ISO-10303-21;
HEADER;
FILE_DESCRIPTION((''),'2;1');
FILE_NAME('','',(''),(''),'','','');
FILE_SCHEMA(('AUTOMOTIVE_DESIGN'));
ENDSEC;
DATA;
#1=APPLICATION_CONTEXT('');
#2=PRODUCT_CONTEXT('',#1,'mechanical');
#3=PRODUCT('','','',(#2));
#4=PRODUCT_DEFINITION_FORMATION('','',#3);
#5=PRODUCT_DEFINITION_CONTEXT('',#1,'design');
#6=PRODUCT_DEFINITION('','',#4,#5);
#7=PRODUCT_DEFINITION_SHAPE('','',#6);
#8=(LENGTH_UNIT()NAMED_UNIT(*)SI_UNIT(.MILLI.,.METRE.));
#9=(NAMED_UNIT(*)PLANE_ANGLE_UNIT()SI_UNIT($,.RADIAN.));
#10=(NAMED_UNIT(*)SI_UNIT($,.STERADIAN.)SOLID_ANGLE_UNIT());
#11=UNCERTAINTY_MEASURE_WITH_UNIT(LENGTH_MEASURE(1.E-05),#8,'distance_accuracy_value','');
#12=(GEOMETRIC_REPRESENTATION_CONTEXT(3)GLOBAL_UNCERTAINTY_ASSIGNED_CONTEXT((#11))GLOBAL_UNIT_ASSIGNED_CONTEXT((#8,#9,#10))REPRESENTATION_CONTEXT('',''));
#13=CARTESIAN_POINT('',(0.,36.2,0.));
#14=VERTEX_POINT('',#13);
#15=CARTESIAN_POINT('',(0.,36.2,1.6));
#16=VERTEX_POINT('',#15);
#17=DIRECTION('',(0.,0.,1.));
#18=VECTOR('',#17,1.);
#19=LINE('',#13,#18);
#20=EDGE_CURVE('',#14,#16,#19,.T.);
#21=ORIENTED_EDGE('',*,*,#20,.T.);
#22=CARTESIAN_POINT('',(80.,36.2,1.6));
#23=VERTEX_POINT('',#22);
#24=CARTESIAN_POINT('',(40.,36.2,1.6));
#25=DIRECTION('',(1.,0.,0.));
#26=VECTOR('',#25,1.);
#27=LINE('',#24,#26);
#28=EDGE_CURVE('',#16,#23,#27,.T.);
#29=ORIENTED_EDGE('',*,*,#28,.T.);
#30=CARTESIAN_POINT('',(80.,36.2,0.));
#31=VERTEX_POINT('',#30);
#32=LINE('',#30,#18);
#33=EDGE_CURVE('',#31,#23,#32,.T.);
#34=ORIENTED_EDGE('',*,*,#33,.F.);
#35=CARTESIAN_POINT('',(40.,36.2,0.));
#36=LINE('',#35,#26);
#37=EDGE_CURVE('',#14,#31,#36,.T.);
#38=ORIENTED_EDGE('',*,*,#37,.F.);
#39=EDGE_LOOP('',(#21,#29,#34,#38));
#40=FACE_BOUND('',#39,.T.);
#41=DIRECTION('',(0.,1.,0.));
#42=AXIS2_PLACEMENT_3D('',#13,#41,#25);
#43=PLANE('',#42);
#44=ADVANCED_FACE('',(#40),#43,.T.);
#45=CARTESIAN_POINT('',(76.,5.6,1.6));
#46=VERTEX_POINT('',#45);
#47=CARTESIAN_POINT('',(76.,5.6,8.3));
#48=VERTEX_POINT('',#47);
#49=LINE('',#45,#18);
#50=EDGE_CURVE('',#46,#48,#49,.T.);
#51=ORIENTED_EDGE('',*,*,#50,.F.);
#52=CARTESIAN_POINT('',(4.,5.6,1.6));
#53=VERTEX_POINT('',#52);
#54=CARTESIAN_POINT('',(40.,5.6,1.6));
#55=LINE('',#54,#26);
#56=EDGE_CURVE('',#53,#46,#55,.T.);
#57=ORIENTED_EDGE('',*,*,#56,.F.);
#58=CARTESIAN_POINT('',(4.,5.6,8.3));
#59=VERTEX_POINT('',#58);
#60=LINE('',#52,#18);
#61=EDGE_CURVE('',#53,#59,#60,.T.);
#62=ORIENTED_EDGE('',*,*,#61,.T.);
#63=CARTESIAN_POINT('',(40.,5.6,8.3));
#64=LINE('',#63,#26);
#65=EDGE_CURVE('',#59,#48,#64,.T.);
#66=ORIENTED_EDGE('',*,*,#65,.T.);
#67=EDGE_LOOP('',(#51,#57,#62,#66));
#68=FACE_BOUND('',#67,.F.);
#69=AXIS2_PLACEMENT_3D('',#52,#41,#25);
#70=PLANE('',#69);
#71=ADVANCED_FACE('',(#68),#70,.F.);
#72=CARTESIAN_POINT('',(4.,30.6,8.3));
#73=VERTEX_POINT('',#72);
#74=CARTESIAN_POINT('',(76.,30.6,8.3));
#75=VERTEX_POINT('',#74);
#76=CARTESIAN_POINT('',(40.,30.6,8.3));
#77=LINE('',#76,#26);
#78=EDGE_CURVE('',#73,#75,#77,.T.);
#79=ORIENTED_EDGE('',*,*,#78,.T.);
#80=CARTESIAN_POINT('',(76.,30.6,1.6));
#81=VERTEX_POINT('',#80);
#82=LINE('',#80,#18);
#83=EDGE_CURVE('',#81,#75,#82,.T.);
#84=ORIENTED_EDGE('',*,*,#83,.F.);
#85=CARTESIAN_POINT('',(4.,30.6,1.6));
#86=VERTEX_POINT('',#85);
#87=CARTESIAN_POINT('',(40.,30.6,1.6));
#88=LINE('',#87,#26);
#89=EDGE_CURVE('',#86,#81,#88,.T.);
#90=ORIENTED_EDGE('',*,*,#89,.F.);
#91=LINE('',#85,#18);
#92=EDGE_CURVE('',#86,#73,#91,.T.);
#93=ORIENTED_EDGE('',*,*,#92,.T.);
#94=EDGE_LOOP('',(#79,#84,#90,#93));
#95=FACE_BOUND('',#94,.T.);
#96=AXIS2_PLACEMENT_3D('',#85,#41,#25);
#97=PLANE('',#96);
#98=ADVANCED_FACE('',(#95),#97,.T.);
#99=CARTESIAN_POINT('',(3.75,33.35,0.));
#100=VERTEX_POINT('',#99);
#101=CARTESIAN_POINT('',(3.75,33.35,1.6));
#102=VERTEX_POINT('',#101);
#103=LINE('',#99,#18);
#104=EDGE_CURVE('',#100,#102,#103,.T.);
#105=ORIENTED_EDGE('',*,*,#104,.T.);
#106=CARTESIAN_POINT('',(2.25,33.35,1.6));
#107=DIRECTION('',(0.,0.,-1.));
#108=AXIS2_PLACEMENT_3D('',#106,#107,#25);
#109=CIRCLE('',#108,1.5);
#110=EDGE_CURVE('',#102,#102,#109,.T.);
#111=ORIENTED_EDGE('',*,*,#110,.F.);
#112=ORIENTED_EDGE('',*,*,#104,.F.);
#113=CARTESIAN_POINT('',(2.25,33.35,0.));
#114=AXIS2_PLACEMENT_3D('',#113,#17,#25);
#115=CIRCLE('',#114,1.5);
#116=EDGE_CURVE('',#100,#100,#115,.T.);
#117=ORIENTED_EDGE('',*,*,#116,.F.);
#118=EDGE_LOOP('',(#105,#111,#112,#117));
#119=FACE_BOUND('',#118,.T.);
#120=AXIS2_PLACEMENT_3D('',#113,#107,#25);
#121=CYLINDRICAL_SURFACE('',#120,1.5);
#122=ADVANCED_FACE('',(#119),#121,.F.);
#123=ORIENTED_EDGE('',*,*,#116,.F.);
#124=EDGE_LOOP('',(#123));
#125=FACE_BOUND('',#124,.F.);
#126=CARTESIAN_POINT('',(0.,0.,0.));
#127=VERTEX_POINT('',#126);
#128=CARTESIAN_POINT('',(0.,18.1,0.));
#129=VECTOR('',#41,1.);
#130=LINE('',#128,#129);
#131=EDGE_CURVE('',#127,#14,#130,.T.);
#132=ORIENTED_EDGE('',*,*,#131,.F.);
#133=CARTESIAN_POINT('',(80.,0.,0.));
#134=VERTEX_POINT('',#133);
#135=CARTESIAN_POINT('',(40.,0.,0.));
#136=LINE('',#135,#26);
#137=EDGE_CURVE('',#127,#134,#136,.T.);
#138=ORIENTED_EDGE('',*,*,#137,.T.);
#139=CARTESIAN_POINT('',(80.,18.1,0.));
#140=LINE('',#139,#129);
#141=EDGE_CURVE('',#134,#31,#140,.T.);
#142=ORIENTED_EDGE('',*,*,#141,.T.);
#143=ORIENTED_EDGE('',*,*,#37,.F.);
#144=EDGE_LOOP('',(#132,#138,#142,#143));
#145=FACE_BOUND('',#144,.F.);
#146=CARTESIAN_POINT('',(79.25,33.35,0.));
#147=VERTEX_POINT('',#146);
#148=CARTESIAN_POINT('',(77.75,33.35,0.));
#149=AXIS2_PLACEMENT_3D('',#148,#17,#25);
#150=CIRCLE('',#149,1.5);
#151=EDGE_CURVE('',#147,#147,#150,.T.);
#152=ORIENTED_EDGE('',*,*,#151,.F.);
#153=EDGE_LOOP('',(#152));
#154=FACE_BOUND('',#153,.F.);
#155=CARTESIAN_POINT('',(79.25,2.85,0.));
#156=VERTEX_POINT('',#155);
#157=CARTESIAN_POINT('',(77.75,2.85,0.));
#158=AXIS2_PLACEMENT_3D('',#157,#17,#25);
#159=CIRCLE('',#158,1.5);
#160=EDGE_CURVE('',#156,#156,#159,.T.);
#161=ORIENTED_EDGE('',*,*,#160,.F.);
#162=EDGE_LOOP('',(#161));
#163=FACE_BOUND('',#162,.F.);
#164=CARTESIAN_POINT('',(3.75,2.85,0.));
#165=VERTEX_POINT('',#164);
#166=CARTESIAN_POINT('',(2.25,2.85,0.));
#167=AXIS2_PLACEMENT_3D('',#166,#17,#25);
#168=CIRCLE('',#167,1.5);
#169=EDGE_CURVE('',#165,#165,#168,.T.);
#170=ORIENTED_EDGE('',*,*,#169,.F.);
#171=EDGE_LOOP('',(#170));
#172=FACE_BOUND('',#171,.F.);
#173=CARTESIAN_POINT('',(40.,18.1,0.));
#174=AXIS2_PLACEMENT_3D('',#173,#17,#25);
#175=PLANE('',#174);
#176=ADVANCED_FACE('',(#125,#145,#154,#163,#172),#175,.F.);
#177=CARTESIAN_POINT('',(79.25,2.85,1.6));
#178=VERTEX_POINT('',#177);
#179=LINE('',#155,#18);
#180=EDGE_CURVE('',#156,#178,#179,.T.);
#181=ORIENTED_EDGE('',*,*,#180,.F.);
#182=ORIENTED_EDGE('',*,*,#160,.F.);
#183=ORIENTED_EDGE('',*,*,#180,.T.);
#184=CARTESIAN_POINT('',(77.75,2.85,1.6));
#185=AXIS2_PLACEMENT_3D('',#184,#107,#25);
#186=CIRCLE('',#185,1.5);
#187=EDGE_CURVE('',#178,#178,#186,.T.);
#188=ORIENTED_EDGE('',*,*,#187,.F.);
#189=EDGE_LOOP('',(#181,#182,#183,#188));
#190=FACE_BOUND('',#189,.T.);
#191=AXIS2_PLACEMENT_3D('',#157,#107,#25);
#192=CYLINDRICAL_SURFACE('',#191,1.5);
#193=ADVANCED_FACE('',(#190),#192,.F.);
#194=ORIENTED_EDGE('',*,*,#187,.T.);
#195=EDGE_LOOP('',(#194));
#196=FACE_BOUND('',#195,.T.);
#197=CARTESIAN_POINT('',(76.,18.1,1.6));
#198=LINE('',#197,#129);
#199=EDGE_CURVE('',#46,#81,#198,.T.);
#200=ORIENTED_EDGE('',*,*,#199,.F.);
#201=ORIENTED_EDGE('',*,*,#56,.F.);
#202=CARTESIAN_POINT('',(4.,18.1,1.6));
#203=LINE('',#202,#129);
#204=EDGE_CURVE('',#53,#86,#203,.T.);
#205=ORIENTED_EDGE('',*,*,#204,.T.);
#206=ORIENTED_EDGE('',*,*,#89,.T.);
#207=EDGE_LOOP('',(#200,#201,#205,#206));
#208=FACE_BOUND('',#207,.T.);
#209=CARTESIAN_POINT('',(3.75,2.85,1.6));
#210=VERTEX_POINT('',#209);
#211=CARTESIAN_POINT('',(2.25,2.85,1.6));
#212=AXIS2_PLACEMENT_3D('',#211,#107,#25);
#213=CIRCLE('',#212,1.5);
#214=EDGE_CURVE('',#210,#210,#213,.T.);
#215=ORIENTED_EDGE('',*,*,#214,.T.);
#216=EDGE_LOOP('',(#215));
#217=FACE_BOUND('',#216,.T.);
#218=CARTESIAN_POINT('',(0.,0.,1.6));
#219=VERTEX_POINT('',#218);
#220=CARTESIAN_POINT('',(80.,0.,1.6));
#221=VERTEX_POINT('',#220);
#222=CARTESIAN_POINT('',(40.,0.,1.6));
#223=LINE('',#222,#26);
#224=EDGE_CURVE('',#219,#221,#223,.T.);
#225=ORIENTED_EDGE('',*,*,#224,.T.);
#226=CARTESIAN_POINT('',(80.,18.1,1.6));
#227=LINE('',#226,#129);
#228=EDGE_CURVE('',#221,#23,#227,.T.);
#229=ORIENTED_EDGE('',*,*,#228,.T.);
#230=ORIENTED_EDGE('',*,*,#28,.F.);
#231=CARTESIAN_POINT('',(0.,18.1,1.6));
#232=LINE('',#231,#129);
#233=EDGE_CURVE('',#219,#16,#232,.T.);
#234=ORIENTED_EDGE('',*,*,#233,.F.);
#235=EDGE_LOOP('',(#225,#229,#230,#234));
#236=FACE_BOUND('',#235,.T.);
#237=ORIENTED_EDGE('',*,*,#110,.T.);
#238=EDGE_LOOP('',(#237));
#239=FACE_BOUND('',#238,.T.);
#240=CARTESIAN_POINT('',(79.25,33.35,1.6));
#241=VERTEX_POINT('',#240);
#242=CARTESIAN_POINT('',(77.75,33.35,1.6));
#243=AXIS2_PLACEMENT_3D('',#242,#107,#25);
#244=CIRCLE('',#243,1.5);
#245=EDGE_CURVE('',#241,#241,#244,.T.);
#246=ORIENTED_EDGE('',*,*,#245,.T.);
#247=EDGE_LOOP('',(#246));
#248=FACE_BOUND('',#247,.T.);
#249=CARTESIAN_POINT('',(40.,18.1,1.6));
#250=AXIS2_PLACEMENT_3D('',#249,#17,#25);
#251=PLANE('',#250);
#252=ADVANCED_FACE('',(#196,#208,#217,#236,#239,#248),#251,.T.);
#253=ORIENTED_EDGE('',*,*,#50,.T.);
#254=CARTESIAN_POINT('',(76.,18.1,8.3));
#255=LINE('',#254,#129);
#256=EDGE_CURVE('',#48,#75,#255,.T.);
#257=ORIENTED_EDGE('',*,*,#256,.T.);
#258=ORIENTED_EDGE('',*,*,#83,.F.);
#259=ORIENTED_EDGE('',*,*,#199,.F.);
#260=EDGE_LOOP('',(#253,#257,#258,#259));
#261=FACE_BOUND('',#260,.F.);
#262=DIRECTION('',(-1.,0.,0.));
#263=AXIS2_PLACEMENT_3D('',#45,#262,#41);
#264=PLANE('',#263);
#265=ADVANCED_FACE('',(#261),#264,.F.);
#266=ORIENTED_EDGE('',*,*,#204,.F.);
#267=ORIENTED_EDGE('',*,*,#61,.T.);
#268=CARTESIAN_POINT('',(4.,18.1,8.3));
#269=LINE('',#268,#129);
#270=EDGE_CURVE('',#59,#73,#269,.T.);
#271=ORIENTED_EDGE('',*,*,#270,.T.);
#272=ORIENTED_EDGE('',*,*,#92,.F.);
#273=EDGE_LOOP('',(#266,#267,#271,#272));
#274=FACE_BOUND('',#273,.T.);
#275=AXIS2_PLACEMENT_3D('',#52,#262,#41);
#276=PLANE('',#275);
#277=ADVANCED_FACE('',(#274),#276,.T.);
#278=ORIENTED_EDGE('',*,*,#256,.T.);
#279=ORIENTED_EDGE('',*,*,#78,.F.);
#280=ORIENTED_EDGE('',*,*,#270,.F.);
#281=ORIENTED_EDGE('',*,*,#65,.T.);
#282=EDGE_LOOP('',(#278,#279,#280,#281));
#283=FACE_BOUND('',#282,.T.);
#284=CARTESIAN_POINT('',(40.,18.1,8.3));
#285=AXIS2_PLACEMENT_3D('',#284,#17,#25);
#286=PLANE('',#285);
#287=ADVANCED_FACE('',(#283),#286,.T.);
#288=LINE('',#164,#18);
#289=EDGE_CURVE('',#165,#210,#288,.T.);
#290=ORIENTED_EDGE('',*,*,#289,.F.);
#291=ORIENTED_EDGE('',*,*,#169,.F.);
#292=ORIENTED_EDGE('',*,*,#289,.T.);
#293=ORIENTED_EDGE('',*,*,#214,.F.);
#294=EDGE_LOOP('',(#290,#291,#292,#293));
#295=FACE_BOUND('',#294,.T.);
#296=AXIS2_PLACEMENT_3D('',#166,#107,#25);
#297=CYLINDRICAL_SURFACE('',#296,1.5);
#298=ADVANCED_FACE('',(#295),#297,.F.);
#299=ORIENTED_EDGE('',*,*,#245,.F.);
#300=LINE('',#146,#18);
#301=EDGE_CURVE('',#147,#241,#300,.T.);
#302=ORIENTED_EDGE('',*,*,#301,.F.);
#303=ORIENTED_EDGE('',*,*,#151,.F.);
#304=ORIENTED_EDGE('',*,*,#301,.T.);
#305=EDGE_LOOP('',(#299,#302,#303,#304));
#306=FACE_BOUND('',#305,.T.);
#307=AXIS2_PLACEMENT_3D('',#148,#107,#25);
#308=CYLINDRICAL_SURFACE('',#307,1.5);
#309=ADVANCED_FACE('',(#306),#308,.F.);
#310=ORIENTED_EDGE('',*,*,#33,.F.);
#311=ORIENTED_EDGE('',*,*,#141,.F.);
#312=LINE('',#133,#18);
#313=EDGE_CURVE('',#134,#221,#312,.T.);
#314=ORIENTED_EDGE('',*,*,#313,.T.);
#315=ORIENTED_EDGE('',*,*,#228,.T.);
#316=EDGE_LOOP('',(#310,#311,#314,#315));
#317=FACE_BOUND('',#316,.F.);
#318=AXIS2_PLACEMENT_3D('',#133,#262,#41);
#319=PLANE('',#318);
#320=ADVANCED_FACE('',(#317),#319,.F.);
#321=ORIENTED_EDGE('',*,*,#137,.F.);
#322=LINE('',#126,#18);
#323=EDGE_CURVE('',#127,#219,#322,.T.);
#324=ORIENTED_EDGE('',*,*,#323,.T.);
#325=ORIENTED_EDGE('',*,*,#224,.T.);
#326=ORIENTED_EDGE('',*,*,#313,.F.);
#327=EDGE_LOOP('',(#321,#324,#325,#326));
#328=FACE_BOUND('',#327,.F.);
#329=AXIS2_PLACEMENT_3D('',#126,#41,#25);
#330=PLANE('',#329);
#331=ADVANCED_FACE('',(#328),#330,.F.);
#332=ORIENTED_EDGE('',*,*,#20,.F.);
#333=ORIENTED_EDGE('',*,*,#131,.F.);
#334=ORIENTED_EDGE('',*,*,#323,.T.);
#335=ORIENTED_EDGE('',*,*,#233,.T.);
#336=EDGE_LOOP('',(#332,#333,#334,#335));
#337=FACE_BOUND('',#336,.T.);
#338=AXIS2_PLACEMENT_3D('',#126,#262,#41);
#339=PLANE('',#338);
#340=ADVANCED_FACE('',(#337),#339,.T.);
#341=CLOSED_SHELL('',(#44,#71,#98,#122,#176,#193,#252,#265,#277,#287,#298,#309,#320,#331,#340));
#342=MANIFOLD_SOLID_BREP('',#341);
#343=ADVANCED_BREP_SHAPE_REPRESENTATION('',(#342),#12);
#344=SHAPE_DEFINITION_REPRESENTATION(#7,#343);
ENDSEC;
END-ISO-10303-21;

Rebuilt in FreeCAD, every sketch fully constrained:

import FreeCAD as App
import Part
import Sketcher
from FreeCAD import Vector

doc = App.newDocument("Part")
body = doc.addObject("PartDesign::Body", "Body")

# Sketch on XY plane
sketch1 = body.newObject("Sketcher::SketchObject", "Sketch")
sketch1.AttachmentSupport = (doc.getObject("XY_Plane"), [""])
sketch1.MapMode = "FlatFace"
sketch1.addGeometry([
    Part.LineSegment(Vector(0, 36.2, 0), Vector(0, 0, 0)),
    Part.LineSegment(Vector(0, 0, 0), Vector(80, 0, 0)),
    Part.LineSegment(Vector(80, 0, 0), Vector(80, 36.2, 0)),
    Part.LineSegment(Vector(80, 36.2, 0), Vector(0, 36.2, 0)),
], False)
sketch1.addConstraint([
    Sketcher.Constraint("Coincident", 0, 2, 1, 1),
    Sketcher.Constraint("Coincident", 1, 2, 2, 1),
    Sketcher.Constraint("Coincident", 2, 2, 3, 1),
    Sketcher.Constraint("Coincident", 3, 2, 0, 1),
    Sketcher.Constraint("Vertical", 0),
    Sketcher.Constraint("Horizontal", 1),
    Sketcher.Constraint("Vertical", 2),
    Sketcher.Constraint("Horizontal", 3),
    Sketcher.Constraint("Coincident", 0, 2, -1, 1),
    Sketcher.Constraint("DistanceX", 1, 1, 1, 2, 80.0),
    Sketcher.Constraint("DistanceY", 0, 2, 0, 1, 36.2),
])
pad1 = body.newObject("PartDesign::Pad", "Pad")
pad1.Profile = sketch1
pad1.Length = 1.6

# Sketch on XY plane
sketch2 = body.newObject("Sketcher::SketchObject", "Sketch001")
sketch2.AttachmentSupport = (doc.getObject("XY_Plane"), [""])
sketch2.MapMode = "FlatFace"
sketch2.AttachmentOffset = App.Placement(Vector(0, 0, 1.6), App.Rotation())
sketch2.addGeometry([
    Part.LineSegment(Vector(4, 30.6, 0), Vector(4, 5.6, 0)),
    Part.LineSegment(Vector(4, 5.6, 0), Vector(76, 5.6, 0)),
    Part.LineSegment(Vector(76, 5.6, 0), Vector(76, 30.6, 0)),
    Part.LineSegment(Vector(76, 30.6, 0), Vector(4, 30.6, 0)),
], False)
sketch2.addConstraint([
    Sketcher.Constraint("Coincident", 0, 2, 1, 1),
    Sketcher.Constraint("Coincident", 1, 2, 2, 1),
    Sketcher.Constraint("Coincident", 2, 2, 3, 1),
    Sketcher.Constraint("Coincident", 3, 2, 0, 1),
    Sketcher.Constraint("Vertical", 0),
    Sketcher.Constraint("Horizontal", 1),
    Sketcher.Constraint("Vertical", 2),
    Sketcher.Constraint("Horizontal", 3),
    Sketcher.Constraint("DistanceX", 1, 1, 1, 2, 72.0),
    Sketcher.Constraint("DistanceY", 0, 2, 0, 1, 25.0),
    Sketcher.Constraint("DistanceX", -1, 1, 0, 2, 4.0),
    Sketcher.Constraint("DistanceY", -1, 1, 0, 2, 5.6),
])
pad2 = body.newObject("PartDesign::Pad", "Pad001")
pad2.Profile = sketch2
pad2.Length = 6.7

# Sketch on XY plane
sketch3 = body.newObject("Sketcher::SketchObject", "Sketch002")
sketch3.AttachmentSupport = (doc.getObject("XY_Plane"), [""])
sketch3.MapMode = "FlatFace"
sketch3.addGeometry([
    Part.Circle(Vector(2.25, 33.35, 0), Vector(0, 0, 1), 1.5),
    Part.Circle(Vector(77.75, 33.35, 0), Vector(0, 0, 1), 1.5),
    Part.Circle(Vector(77.75, 2.85, 0), Vector(0, 0, 1), 1.5),
    Part.Circle(Vector(2.25, 2.85, 0), Vector(0, 0, 1), 1.5),
], False)
sketch3.addConstraint([
    Sketcher.Constraint("Equal", 0, 1),
    Sketcher.Constraint("Equal", 1, 2),
    Sketcher.Constraint("Equal", 2, 3),
    Sketcher.Constraint("Horizontal", 0, 3, 1, 3),
    Sketcher.Constraint("Horizontal", 2, 3, 3, 3),
    Sketcher.Constraint("Vertical", 1, 3, 2, 3),
    Sketcher.Constraint("Vertical", 0, 3, 3, 3),
    Sketcher.Constraint("Diameter", 0, 3.0),
    Sketcher.Constraint("DistanceX", 0, 3, 1, 3, 75.5),
    Sketcher.Constraint("DistanceY", 2, 3, 1, 3, 30.5),
    Sketcher.Constraint("DistanceX", -1, 1, 0, 3, 2.25),
    Sketcher.Constraint("DistanceY", -1, 1, 0, 3, 33.35),
])
pocket1 = body.newObject("PartDesign::Pocket", "Pocket")
pocket1.Profile = sketch3
pocket1.Length = 5
pocket1.Reversed = True

doc.recompute()
